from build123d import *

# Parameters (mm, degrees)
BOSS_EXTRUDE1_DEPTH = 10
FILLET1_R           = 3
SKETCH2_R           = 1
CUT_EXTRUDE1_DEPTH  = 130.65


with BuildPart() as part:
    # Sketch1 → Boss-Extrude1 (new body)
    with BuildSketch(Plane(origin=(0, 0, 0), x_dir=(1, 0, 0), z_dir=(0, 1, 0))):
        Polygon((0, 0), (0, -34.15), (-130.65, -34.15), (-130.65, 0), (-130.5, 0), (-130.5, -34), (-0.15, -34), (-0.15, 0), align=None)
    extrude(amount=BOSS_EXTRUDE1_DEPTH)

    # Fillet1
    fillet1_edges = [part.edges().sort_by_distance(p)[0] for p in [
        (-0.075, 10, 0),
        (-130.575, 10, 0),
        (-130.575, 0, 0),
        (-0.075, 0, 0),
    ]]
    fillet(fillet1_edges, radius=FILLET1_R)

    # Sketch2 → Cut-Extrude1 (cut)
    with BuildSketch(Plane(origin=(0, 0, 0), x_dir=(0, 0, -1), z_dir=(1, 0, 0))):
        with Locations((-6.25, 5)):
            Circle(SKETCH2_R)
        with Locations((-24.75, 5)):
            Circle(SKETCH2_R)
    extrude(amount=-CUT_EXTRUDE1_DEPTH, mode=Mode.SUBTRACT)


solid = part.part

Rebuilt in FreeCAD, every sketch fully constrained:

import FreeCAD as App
import Part
import Sketcher
Q = App.Units.Quantity


def edges_at(feature, points):
    """Names of the edges that pass closest to the given points."""
    edges = feature.Shape.Edges
    near = lambda p: min(range(len(edges)), key=lambda i: edges[i].distToShape(Part.Vertex(*p))[0])
    return sorted({f"Edge{near(p) + 1}" for p in points})


def add_polygon(sketch, points):
    """Adds a closed chain of lines whose ends are joined by coincident constraints."""
    first, n = sketch.GeometryCount, len(points)
    for a, b in zip(points, points[1:] + points[:1]):
        sketch.addGeometry(Part.LineSegment(App.Vector(*a, 0), App.Vector(*b, 0)), False)
    for i in range(n):
        sketch.addConstraint(Sketcher.Constraint("Coincident", first + i, 2, first + (i + 1) % n, 1))

doc = App.newDocument("Part")
body = doc.addObject("PartDesign::Body", "Body")

sketch1 = body.newObject("Sketcher::SketchObject", "Sketch")
sketch1.AttachmentSupport = (doc.getObject("XZ_Plane"), [""])
sketch1.MapMode = "FlatFace"
add_polygon(sketch1, [(0, 34.15), (0, 0), (-0.15, 0), (-0.15, 34), (-130.5, 34), (-130.5, 0), (-130.65, 0), (-130.65, 34.15)])
sketch1.addConstraint(Sketcher.Constraint("Vertical", 0))
sketch1.addConstraint(Sketcher.Constraint("Horizontal", 1))
sketch1.addConstraint(Sketcher.Constraint("Vertical", 2))
sketch1.addConstraint(Sketcher.Constraint("Horizontal", 3))
sketch1.addConstraint(Sketcher.Constraint("Vertical", 4))
sketch1.addConstraint(Sketcher.Constraint("Horizontal", 5))
sketch1.addConstraint(Sketcher.Constraint("Vertical", 6))
sketch1.addConstraint(Sketcher.Constraint("Horizontal", 7))
sketch1.addConstraint(Sketcher.Constraint("Coincident", 0, 2, -1, 1))
sketch1.addConstraint(Sketcher.Constraint("PointOnObject", 4, 2, -1))
sketch1.addConstraint(Sketcher.Constraint("Equal", 1, 5))
sketch1.addConstraint(Sketcher.Constraint("DistanceY", 2, 1, 2, 2, Q("34 mm")))
sketch1.addConstraint(Sketcher.Constraint("DistanceX", 1, 2, 1, 1, Q("0.15 mm")))
sketch1.addConstraint(Sketcher.Constraint("DistanceX", 3, 2, 3, 1, Q("130.35 mm")))
sketch1.addConstraint(Sketcher.Constraint("DistanceY", 0, 2, 0, 1, Q("34.15 mm")))
pad1 = body.newObject("PartDesign::Pad", "Pad")
pad1.Profile = sketch1
pad1.Length = 10
pad1.Reversed = True
doc.recompute()

fillet = body.newObject("PartDesign::Fillet", "Fillet")
fillet.Base = (pad1, edges_at(pad1, [
    (-0.075, 10, 0),
    (-130.575, 10, 0),
    (-130.575, 0, 0),
    (-0.075, 0, 0),
]))
fillet.Radius = 3

sketch2 = body.newObject("Sketcher::SketchObject", "Sketch001")
sketch2.AttachmentSupport = (doc.getObject("YZ_Plane"), [""])
sketch2.MapMode = "FlatFace"
sketch2.addGeometry(Part.Circle(App.Vector(5, 6.25, 0), App.Vector(0, 0, 1), 1), False)
sketch2.addGeometry(Part.Circle(App.Vector(5, 24.75, 0), App.Vector(0, 0, 1), 1), False)
sketch2.addConstraint(Sketcher.Constraint("Equal", 0, 1))
sketch2.addConstraint(Sketcher.Constraint("Vertical", 0, 3, 1, 3))
sketch2.addConstraint(Sketcher.Constraint("Diameter", 0, Q("2 mm")))
sketch2.addConstraint(Sketcher.Constraint("DistanceX", -1, 1, 0, 3, Q("5 mm")))
sketch2.addConstraint(Sketcher.Constraint("DistanceY", 0, 3, 1, 3, Q("18.5 mm")))
sketch2.addConstraint(Sketcher.Constraint("DistanceY", -1, 1, 0, 3, Q("6.25 mm")))
pocket1 = body.newObject("PartDesign::Pocket", "Pocket")
pocket1.Profile = sketch2
pocket1.Length = 130.65

doc.recompute()
